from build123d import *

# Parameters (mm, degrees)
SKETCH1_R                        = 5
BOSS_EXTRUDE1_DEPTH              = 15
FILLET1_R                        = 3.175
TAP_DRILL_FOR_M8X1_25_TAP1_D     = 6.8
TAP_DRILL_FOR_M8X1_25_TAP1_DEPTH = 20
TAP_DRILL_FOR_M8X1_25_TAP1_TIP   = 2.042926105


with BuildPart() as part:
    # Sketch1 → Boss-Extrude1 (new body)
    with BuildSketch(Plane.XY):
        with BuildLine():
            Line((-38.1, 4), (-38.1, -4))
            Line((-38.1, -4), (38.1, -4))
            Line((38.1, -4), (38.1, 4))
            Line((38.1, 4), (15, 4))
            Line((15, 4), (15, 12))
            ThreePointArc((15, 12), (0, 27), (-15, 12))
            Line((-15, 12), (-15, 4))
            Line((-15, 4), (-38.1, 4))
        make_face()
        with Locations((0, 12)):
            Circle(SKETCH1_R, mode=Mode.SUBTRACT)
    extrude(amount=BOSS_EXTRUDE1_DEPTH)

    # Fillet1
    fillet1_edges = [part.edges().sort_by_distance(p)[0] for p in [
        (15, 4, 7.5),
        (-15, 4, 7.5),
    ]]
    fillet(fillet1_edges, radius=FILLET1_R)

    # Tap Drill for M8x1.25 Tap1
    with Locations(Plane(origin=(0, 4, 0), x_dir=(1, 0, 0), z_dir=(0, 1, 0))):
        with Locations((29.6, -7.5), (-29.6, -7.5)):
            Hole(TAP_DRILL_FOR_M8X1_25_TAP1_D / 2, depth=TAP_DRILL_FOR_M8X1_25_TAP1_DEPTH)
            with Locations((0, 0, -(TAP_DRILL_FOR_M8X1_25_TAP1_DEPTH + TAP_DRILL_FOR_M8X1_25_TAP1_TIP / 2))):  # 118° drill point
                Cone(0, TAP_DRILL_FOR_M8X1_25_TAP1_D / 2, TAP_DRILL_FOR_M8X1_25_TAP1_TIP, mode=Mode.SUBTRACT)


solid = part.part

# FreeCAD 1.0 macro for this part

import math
import FreeCAD as App
import Part
import Sketcher

V = App.Vector
Q = App.Units.Quantity


def edges_at(feature, points):
    """Names of the edges that pass closest to the given points."""
    edges = feature.Shape.Edges
    near = lambda p: min(range(len(edges)), key=lambda i: edges[i].distToShape(Part.Vertex(*p))[0])
    return sorted({f"Edge{near(p) + 1}" for p in points})

doc = App.newDocument("Part")
params = doc.addObject("Spreadsheet::Sheet", "Params")
for row, (alias, value) in enumerate([
    ("sketch1_diameter", "10 mm"),
    ("sketch1_radius", "15 mm"),
    ("sketch1_height", "8 mm"),
    ("sketch1_width", "76.2 mm"),
    ("pad1_length", "15 mm"),
    ("fillet_radius", "3.175 mm"),
    ("sketch2_diameter", "6.8 mm"),
    ("hole_diameter", "6.8 mm"),
    ("hole_depth", "20 mm"),
], start=1):
    params.set(f"A{row}", alias)
    params.set(f"B{row}", "=" + value)
    params.setAlias(f"B{row}", alias)

body = doc.addObject("PartDesign::Body", "Body")

# Sketch on XY plane
sketch1 = body.newObject("Sketcher::SketchObject", "Sketch")
sketch1.AttachmentSupport = (doc.getObject("XY_Plane"), [""])
sketch1.MapMode = "FlatFace"
sketch1.addGeometry(Part.LineSegment(V(-38.1, 4, 0), V(-38.1, -4, 0)), False)
sketch1.addGeometry(Part.LineSegment(V(-38.1, -4, 0), V(38.1, -4, 0)), False)
sketch1.addGeometry(Part.LineSegment(V(38.1, -4, 0), V(38.1, 4, 0)), False)
sketch1.addGeometry(Part.LineSegment(V(38.1, 4, 0), V(15, 4, 0)), False)
sketch1.addGeometry(Part.LineSegment(V(15, 4, 0), V(15, 12, 0)), False)
sketch1.addGeometry(Part.ArcOfCircle(Part.Circle(V(0, 12, 0), V(0, 0, 1), 15), math.radians(0), math.radians(180)), False)
sketch1.addGeometry(Part.LineSegment(V(-15, 12, 0), V(-15, 4, 0)), False)
sketch1.addGeometry(Part.LineSegment(V(-15, 4, 0), V(-38.1, 4, 0)), False)
sketch1.addGeometry(Part.Circle(V(0, 12, 0), V(0, 0, 1), 5), False)
sketch1.addConstraint(Sketcher.Constraint("Coincident", 0, 2, 1, 1))
sketch1.addConstraint(Sketcher.Constraint("Coincident", 1, 2, 2, 1))
sketch1.addConstraint(Sketcher.Constraint("Coincident", 2, 2, 3, 1))
sketch1.addConstraint(Sketcher.Constraint("Coincident", 3, 2, 4, 1))
sketch1.addConstraint(Sketcher.Constraint("Tangent", 4, 2, 5, 1))
sketch1.addConstraint(Sketcher.Constraint("Tangent", 5, 2, 6, 1))
sketch1.addConstraint(Sketcher.Constraint("Coincident", 6, 2, 7, 1))
sketch1.addConstraint(Sketcher.Constraint("Coincident", 7, 2, 0, 1))
sketch1.addConstraint(Sketcher.Constraint("Vertical", 0))
sketch1.addConstraint(Sketcher.Constraint("Horizontal", 1))
sketch1.addConstraint(Sketcher.Constraint("Vertical", 2))
sketch1.addConstraint(Sketcher.Constraint("Horizontal", 3))
sketch1.addConstraint(Sketcher.Constraint("Vertical", 4))
sketch1.addConstraint(Sketcher.Constraint("Vertical", 6))
sketch1.addConstraint(Sketcher.Constraint("Horizontal", 7))
sketch1.addConstraint(Sketcher.Constraint("Coincident", 8, 3, 5, 3))
sketch1.addConstraint(Sketcher.Constraint("Symmetric", 0, 2, 2, 2, -1, 1))
sketch1.addConstraint(Sketcher.Constraint("Symmetric", 3, 2, 6, 2, -2))
sketch1.addConstraint(Sketcher.Constraint("Equal", 2, 4))
sketch1.addConstraint(Sketcher.Constraint("Diameter", 8, Q("10 mm")))
sketch1.addConstraint(Sketcher.Constraint("Radius", 5, Q("15 mm")))
sketch1.addConstraint(Sketcher.Constraint("DistanceY", 0, 2, 0, 1, Q("8 mm")))
sketch1.addConstraint(Sketcher.Constraint("DistanceX", 1, 1, 1, 2, Q("76.2 mm")))
sketch1.setExpression("Constraints[19]", "Params.sketch1_diameter")
sketch1.setExpression("Constraints[20]", "Params.sketch1_radius")
sketch1.setExpression("Constraints[21]", "Params.sketch1_height")
sketch1.setExpression("Constraints[22]", "Params.sketch1_width")
pad1 = body.newObject("PartDesign::Pad", "Pad")
pad1.Profile = sketch1
pad1.setExpression("Length", "Params.pad1_length")
doc.recompute()

fillet = body.newObject("PartDesign::Fillet", "Fillet")
fillet.Base = (pad1, edges_at(pad1, [(15, 4, 7.5), (-15, 4, 7.5)]))
fillet.setExpression("Radius", "Params.fillet_radius")

# Sketch on XZ plane
sketch2 = body.newObject("Sketcher::SketchObject", "Sketch001")
sketch2.AttachmentSupport = (doc.getObject("XZ_Plane"), [""])
sketch2.MapMode = "FlatFace"
sketch2.AttachmentOffset = App.Placement(V(0, 0, -4), App.Rotation())
sketch2.addGeometry(Part.Circle(V(29.6, 7.5, 0), V(0, 0, 1), 3.4), False)
sketch2.addGeometry(Part.Circle(V(-29.6, 7.5, 0), V(0, 0, 1), 3.4), False)
sketch2.addConstraint(Sketcher.Constraint("Equal", 0, 1))
sketch2.addConstraint(Sketcher.Constraint("Symmetric", 0, 3, 1, 3, -2))
sketch2.addConstraint(Sketcher.Constraint("Diameter", 0, Q("6.8 mm")))
sketch2.addConstraint(Sketcher.Constraint("DistanceX", -1, 1, 0, 3, Q("29.6 mm")))
sketch2.addConstraint(Sketcher.Constraint("DistanceY", -1, 1, 0, 3, Q("7.5 mm")))
sketch2.setExpression("Constraints[2]", "Params.sketch2_diameter")
doc.recompute()
hole = body.newObject("PartDesign::Hole", "Hole")
hole.Profile = sketch2
hole.ThreadType = "None"
hole.setExpression("Diameter", "Params.hole_diameter")
hole.DepthType = "Dimension"
hole.setExpression("Depth", "Params.hole_depth")
hole.DrillPoint = "Angled"
hole.DrillPointAngle = 118
hole.Reversed = True

doc.recompute()
